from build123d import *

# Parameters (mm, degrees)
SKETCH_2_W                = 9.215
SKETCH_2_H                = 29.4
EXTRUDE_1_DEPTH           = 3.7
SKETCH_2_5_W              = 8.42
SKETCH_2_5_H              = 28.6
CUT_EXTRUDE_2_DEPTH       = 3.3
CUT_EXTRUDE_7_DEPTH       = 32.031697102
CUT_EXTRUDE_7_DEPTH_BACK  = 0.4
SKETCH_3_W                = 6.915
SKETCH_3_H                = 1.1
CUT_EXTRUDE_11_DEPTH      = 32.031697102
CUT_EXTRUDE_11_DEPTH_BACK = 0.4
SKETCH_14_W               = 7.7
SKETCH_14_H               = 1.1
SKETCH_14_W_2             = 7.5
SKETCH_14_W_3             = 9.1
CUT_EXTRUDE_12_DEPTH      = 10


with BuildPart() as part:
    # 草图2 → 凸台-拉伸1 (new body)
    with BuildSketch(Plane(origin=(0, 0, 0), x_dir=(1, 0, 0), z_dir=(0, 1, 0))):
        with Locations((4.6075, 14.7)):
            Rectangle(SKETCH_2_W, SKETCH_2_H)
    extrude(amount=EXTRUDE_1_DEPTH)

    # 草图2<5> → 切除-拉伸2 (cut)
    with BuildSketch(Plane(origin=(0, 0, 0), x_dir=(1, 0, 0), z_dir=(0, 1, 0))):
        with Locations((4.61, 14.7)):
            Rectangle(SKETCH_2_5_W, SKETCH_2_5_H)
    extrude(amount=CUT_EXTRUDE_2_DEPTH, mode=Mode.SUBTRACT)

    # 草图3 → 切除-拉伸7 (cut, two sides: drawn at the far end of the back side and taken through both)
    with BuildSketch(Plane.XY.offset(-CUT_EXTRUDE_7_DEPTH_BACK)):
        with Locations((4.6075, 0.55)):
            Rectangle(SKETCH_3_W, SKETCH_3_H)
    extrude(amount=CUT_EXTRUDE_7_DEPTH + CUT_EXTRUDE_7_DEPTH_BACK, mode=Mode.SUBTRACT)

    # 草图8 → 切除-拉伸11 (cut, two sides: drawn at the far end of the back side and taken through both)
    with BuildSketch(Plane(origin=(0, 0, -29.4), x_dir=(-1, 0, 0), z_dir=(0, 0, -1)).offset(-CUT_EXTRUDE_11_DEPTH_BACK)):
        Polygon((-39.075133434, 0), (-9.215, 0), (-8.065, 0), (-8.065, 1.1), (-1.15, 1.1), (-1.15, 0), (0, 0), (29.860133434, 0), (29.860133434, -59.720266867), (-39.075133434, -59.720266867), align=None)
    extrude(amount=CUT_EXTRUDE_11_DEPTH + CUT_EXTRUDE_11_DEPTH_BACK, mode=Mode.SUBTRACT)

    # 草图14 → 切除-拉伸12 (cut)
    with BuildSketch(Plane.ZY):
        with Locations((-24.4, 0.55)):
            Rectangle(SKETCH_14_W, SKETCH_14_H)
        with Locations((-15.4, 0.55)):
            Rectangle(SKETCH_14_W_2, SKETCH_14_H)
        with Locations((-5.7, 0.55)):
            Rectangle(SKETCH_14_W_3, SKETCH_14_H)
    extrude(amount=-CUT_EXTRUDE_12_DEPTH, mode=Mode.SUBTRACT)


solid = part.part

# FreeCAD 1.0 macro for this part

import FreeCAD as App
import Part
import Sketcher
from FreeCAD import Vector

doc = App.newDocument("Part")
body = doc.addObject("PartDesign::Body", "Body")

sketch1 = body.newObject("Sketcher::SketchObject", "Sketch")
sketch1.AttachmentSupport = (doc.getObject("XZ_Plane"), [""])
sketch1.MapMode = "FlatFace"
sketch1.addGeometry([
    Part.LineSegment(Vector(0, -29, 0), Vector(0, 0, 0)),
    Part.LineSegment(Vector(0, 0, 0), Vector(9, 0, 0)),
    Part.LineSegment(Vector(9, 0, 0), Vector(9, -29, 0)),
    Part.LineSegment(Vector(9, -29, 0), Vector(0, -29, 0)),
], False)
sketch1.addConstraint([
    Sketcher.Constraint("Coincident", 0, 2, 1, 1),
    Sketcher.Constraint("Coincident", 1, 2, 2, 1),
    Sketcher.Constraint("Coincident", 2, 2, 3, 1),
    Sketcher.Constraint("Coincident", 3, 2, 0, 1),
    Sketcher.Constraint("Vertical", 0),
    Sketcher.Constraint("Horizontal", 1),
    Sketcher.Constraint("Vertical", 2),
    Sketcher.Constraint("Horizontal", 3),
    Sketcher.Constraint("Coincident", 0, 2, -1, 1),
    Sketcher.Constraint("DistanceY", 0, 1, 0, 2, 29.4),
    Sketcher.Constraint("DistanceX", 1, 1, 1, 2, 9.215),
])
pad1 = body.newObject("PartDesign::Pad", "Pad")
pad1.Profile = sketch1
pad1.Length = 3.7
pad1.Reversed = True

sketch2 = body.newObject("Sketcher::SketchObject", "Sketch001")
sketch2.AttachmentSupport = (doc.getObject("XZ_Plane"), [""])
sketch2.MapMode = "FlatFace"
sketch2.addGeometry([
    Part.LineSegment(Vector(0, -29, 0), Vector(0, 0, 0)),
    Part.LineSegment(Vector(0, 0, 0), Vector(9, 0, 0)),
    Part.LineSegment(Vector(9, 0, 0), Vector(9, -29, 0)),
    Part.LineSegment(Vector(9, -29, 0), Vector(0, -29, 0)),
], False)
sketch2.addConstraint([
    Sketcher.Constraint("Coincident", 0, 2, 1, 1),
    Sketcher.Constraint("Coincident", 1, 2, 2, 1),
    Sketcher.Constraint("Coincident", 2, 2, 3, 1),
    Sketcher.Constraint("Coincident", 3, 2, 0, 1),
    Sketcher.Constraint("Vertical", 0),
    Sketcher.Constraint("Horizontal", 1),
    Sketcher.Constraint("Vertical", 2),
    Sketcher.Constraint("Horizontal", 3),
    Sketcher.Constraint("DistanceY", 0, 1, 0, 2, 28.6),
    Sketcher.Constraint("DistanceY", 2, 2, -1, 1, 29.0),
    Sketcher.Constraint("DistanceX", 1, 1, 1, 2, 8.42),
    Sketcher.Constraint("DistanceX", -1, 1, 0, 2, 0.4),
])
pocket1 = body.newObject("PartDesign::Pocket", "Pocket")
pocket1.Profile = sketch2
pocket1.Length = 3.3

sketch3 = body.newObject("Sketcher::SketchObject", "Sketch002")
sketch3.AttachmentSupport = (doc.getObject("XY_Plane"), [""])
sketch3.MapMode = "FlatFace"
sketch3.addGeometry([
    Part.LineSegment(Vector(1.1, 1.1, 0), Vector(1.1, 0, 0)),
    Part.LineSegment(Vector(1.1, 0, 0), Vector(8.1, 0, 0)),
    Part.LineSegment(Vector(8.1, 0, 0), Vector(8.1, 1.1, 0)),
    Part.LineSegment(Vector(8.1, 1.1, 0), Vector(1.1, 1.1, 0)),
], False)
sketch3.addConstraint([
    Sketcher.Constraint("Coincident", 0, 2, 1, 1),
    Sketcher.Constraint("Coincident", 1, 2, 2, 1),
    Sketcher.Constraint("Coincident", 2, 2, 3, 1),
    Sketcher.Constraint("Coincident", 3, 2, 0, 1),
    Sketcher.Constraint("Vertical", 0),
    Sketcher.Constraint("Horizontal", 1),
    Sketcher.Constraint("Vertical", 2),
    Sketcher.Constraint("Horizontal", 3),
    Sketcher.Constraint("PointOnObject", 0, 2, -1),
    Sketcher.Constraint("DistanceY", 0, 2, 0, 1, 1.1),
    Sketcher.Constraint("DistanceX", 1, 1, 1, 2, 6.915),
    Sketcher.Constraint("DistanceX", -1, 1, 0, 2, 1.15),
])
pocket2 = body.newObject("PartDesign::Pocket", "Pocket001")
pocket2.Profile = sketch3
pocket2.Type = "TwoLengths"
pocket2.Length = 32.031697
pocket2.Length2 = 0.4
pocket2.Reversed = True

sketch4 = body.newObject("Sketcher::SketchObject", "Sketch003")
sketch4.AttachmentSupport = (doc.getObject("XY_Plane"), [""])
sketch4.MapMode = "FlatFace"
sketch4.AttachmentOffset = App.Placement(Vector(0, 0, -29.4), App.Rotation())
sketch4.addGeometry([
    Part.LineSegment(Vector(8.1, 0, 0), Vector(39.1, 0, 0)),
    Part.LineSegment(Vector(39.1, 0, 0), Vector(39.1, -59.7, 0)),
    Part.LineSegment(Vector(39.1, -59.7, 0), Vector(-29.9, -59.7, 0)),
    Part.LineSegment(Vector(-29.9, -59.7, 0), Vector(-29.9, 0, 0)),
    Part.LineSegment(Vector(-29.9, 0, 0), Vector(1.1, 0, 0)),
    Part.LineSegment(Vector(1.1, 0, 0), Vector(1.1, 1.1, 0)),
    Part.LineSegment(Vector(1.1, 1.1, 0), Vector(8.1, 1.1, 0)),
    Part.LineSegment(Vector(8.1, 1.1, 0), Vector(8.1, 0, 0)),
], False)
sketch4.addConstraint([
    Sketcher.Constraint("Coincident", 0, 2, 1, 1),
    Sketcher.Constraint("Coincident", 1, 2, 2, 1),
    Sketcher.Constraint("Coincident", 2, 2, 3, 1),
    Sketcher.Constraint("Coincident", 3, 2, 4, 1),
    Sketcher.Constraint("Coincident", 4, 2, 5, 1),
    Sketcher.Constraint("Coincident", 5, 2, 6, 1),
    Sketcher.Constraint("Coincident", 6, 2, 7, 1),
    Sketcher.Constraint("Coincident", 7, 2, 0, 1),
    Sketcher.Constraint("Horizontal", 0),
    Sketcher.Constraint("Vertical", 1),
    Sketcher.Constraint("Horizontal", 2),
    Sketcher.Constraint("Vertical", 3),
    Sketcher.Constraint("Horizontal", 4),
    Sketcher.Constraint("Vertical", 5),
    Sketcher.Constraint("Horizontal", 6),
    Sketcher.Constraint("Vertical", 7),
    Sketcher.Constraint("PointOnObject", 0, 2, -1),
    Sketcher.Constraint("PointOnObject", 3, 2, -1),
    Sketcher.Constraint("Equal", 0, 4),
    Sketcher.Constraint("DistanceY", 5, 1, 5, 2, 1.1),
    Sketcher.Constraint("DistanceX", 6, 1, 6, 2, 6.915),
    Sketcher.Constraint("DistanceX", -1, 1, 4, 2, 1.15),
    Sketcher.Constraint("DistanceX", 0, 1, 0, 2, 31.010133),
    Sketcher.Constraint("DistanceY", 1, 2, 1, 1, 59.720267),
])
pocket3 = body.newObject("PartDesign::Pocket", "Pocket002")
pocket3.Profile = sketch4
pocket3.Type = "ThroughAll"
pocket3.Midplane = True

sketch5 = body.newObject("Sketcher::SketchObject", "Sketch004")
sketch5.AttachmentSupport = (doc.getObject("YZ_Plane"), [""])
sketch5.MapMode = "FlatFace"
sketch5.addGeometry([
    Part.LineSegment(Vector(1.1, -28.2, 0), Vector(0, -28.2, 0)),
    Part.LineSegment(Vector(0, -28.2, 0), Vector(0, -20.6, 0)),
    Part.LineSegment(Vector(0, -20.6, 0), Vector(1.1, -20.6, 0)),
    Part.LineSegment(Vector(1.1, -20.6, 0), Vector(1.1, -28.2, 0)),
    Part.LineSegment(Vector(1.1, -19.1, 0), Vector(0, -19.1, 0)),
    Part.LineSegment(Vector(0, -19.1, 0), Vector(0, -11.7, 0)),
    Part.LineSegment(Vector(0, -11.7, 0), Vector(1.1, -11.7, 0)),
    Part.LineSegment(Vector(1.1, -11.7, 0), Vector(1.1, -19.1, 0)),
    Part.LineSegment(Vector(1.1, -10.2, 0), Vector(0, -10.2, 0)),
    Part.LineSegment(Vector(0, -10.2, 0), Vector(0, -1.1, 0)),
    Part.LineSegment(Vector(0, -1.1, 0), Vector(1.1, -1.1, 0)),
    Part.LineSegment(Vector(1.1, -1.1, 0), Vector(1.1, -10.2, 0)),
], False)
sketch5.addConstraint([
    Sketcher.Constraint("Coincident", 0, 2, 1, 1),
    Sketcher.Constraint("Coincident", 1, 2, 2, 1),
    Sketcher.Constraint("Coincident", 2, 2, 3, 1),
    Sketcher.Constraint("Coincident", 3, 2, 0, 1),
    Sketcher.Constraint("Coincident", 4, 2, 5, 1),
    Sketcher.Constraint("Coincident", 5, 2, 6, 1),
    Sketcher.Constraint("Coincident", 6, 2, 7, 1),
    Sketcher.Constraint("Coincident", 7, 2, 4, 1),
    Sketcher.Constraint("Coincident", 8, 2, 9, 1),
    Sketcher.Constraint("Coincident", 9, 2, 10, 1),
    Sketcher.Constraint("Coincident", 10, 2, 11, 1),
    Sketcher.Constraint("Coincident", 11, 2, 8, 1),
    Sketcher.Constraint("Horizontal", 0),
    Sketcher.Constraint("Vertical", 1),
    Sketcher.Constraint("Horizontal", 2),
    Sketcher.Constraint("Vertical", 3),
    Sketcher.Constraint("Horizontal", 4),
    Sketcher.Constraint("Vertical", 5),
    Sketcher.Constraint("Horizontal", 6),
    Sketcher.Constraint("Vertical", 7),
    Sketcher.Constraint("Horizontal", 8),
    Sketcher.Constraint("Vertical", 9),
    Sketcher.Constraint("Horizontal", 10),
    Sketcher.Constraint("Vertical", 11),
    Sketcher.Constraint("PointOnObject", 0, 2, -2),
    Sketcher.Constraint("PointOnObject", 4, 2, -2),
    Sketcher.Constraint("PointOnObject", 8, 2, -2),
    Sketcher.Constraint("Vertical", 3, 2, 6, 2),
    Sketcher.Constraint("Vertical", 7, 2, 10, 2),
    Sketcher.Constraint("DistanceX", 0, 2, 0, 1, 1.1),
    Sketcher.Constraint("DistanceY", 1, 1, 1, 2, 7.7),
    Sketcher.Constraint("DistanceY", 5, 1, 5, 2, 7.5),
    Sketcher.Constraint("DistanceY", 9, 1, 9, 2, 9.1),
    Sketcher.Constraint("DistanceY", 4, 2, 9, 2, 18.0),
    Sketcher.Constraint("DistanceY", 1, 2, 4, 2, 1.4),
    Sketcher.Constraint("DistanceY", 0, 2, -1, 1, 28.25),
])
pocket4 = body.newObject("PartDesign::Pocket", "Pocket003")
pocket4.Profile = sketch5
pocket4.Length = 10
pocket4.Reversed = True

doc.recompute()
